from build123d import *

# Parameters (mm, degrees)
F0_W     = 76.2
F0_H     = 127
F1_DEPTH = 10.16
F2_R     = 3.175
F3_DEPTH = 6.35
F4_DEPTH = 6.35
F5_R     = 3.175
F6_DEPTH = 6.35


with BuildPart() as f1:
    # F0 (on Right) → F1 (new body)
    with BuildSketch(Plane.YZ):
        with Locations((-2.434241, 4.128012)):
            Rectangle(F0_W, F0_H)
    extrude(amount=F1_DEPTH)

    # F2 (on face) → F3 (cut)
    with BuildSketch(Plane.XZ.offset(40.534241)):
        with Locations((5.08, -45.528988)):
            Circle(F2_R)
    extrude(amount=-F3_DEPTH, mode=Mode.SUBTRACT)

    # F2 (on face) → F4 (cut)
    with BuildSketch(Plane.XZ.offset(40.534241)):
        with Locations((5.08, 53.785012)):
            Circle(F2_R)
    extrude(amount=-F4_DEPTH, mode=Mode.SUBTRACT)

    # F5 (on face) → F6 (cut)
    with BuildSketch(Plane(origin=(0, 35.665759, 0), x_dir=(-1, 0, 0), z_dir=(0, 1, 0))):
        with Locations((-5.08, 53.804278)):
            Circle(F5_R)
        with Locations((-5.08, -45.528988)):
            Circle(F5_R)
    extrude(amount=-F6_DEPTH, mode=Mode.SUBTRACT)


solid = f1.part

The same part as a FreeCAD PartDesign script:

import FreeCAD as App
import Part
import Sketcher
from FreeCAD import Vector
Q = App.Units.Quantity

doc = App.newDocument("Part")
body = doc.addObject("PartDesign::Body", "Body")

sketch1 = doc.addObject("Sketcher::SketchObject", "Sketch")
body.addObject(sketch1)
sketch1.AttachmentSupport = (doc.YZ_Plane, [""])
sketch1.MapMode = "FlatFace"
sketch1.addGeometry([
    Part.LineSegment(Vector(-40.534241, 67.628012, 0), Vector(-40.534241, -59.371988, 0)),
    Part.LineSegment(Vector(-40.534241, -59.371988, 0), Vector(35.665759, -59.371988, 0)),
    Part.LineSegment(Vector(35.665759, -59.371988, 0), Vector(35.665759, 67.628012, 0)),
    Part.LineSegment(Vector(35.665759, 67.628012, 0), Vector(-40.534241, 67.628012, 0)),
], False)
sketch1.addConstraint([
    Sketcher.Constraint("Coincident", 0, 2, 1, 1),
    Sketcher.Constraint("Coincident", 1, 2, 2, 1),
    Sketcher.Constraint("Coincident", 2, 2, 3, 1),
    Sketcher.Constraint("Coincident", 3, 2, 0, 1),
    Sketcher.Constraint("Vertical", 0),
    Sketcher.Constraint("Horizontal", 1),
    Sketcher.Constraint("Vertical", 2),
    Sketcher.Constraint("Horizontal", 3),
    Sketcher.Constraint("DistanceX", 1, 1, 1, 2, Q("3 in")),
    Sketcher.Constraint("DistanceY", 0, 2, 0, 1, Q("5 in")),
    Sketcher.Constraint("DistanceX", 0, 2, -1, 1, Q("40.534241 mm")),
    Sketcher.Constraint("DistanceY", 0, 2, -1, 1, Q("59.371988 mm")),
])
pad1 = doc.addObject("PartDesign::Pad", "Pad")
body.addObject(pad1)
pad1.Profile = sketch1
pad1.Length = Q("0.4 in")

sketch2 = doc.addObject("Sketcher::SketchObject", "Sketch001")
body.addObject(sketch2)
sketch2.AttachmentSupport = (doc.XZ_Plane, [""])
sketch2.MapMode = "FlatFace"
sketch2.AttachmentOffset = App.Placement(Vector(0, 0, 40.534241), App.Rotation())
sketch2.addGeometry(Part.Circle(Vector(5.08, -45.528988, 0), Vector(0, 0, 1), 3.175), False)
sketch2.addConstraint([
    Sketcher.Constraint("Diameter", 0, Q("0.25 in")),
    Sketcher.Constraint("DistanceX", -1, 1, 0, 3, Q("0.2 in")),
    Sketcher.Constraint("DistanceY", 0, 3, -1, 1, Q("45.528988 mm")),
])
pocket1 = doc.addObject("PartDesign::Pocket", "Pocket")
body.addObject(pocket1)
pocket1.Profile = sketch2
pocket1.Length = Q("0.25 in")

sketch3 = doc.addObject("Sketcher::SketchObject", "Sketch002")
body.addObject(sketch3)
sketch3.AttachmentSupport = (doc.XZ_Plane, [""])
sketch3.MapMode = "FlatFace"
sketch3.AttachmentOffset = App.Placement(Vector(0, 0, 40.534241), App.Rotation())
sketch3.addGeometry(Part.Circle(Vector(5.08, 53.785012, 0), Vector(0, 0, 1), 3.175), False)
sketch3.addConstraint([
    Sketcher.Constraint("Diameter", 0, Q("0.25 in")),
    Sketcher.Constraint("DistanceX", -1, 1, 0, 3, Q("0.2 in")),
    Sketcher.Constraint("DistanceY", -1, 1, 0, 3, Q("53.785012 mm")),
])
pocket2 = doc.addObject("PartDesign::Pocket", "Pocket001")
body.addObject(pocket2)
pocket2.Profile = sketch3
pocket2.Length = Q("0.25 in")

sketch4 = doc.addObject("Sketcher::SketchObject", "Sketch003")
body.addObject(sketch4)
sketch4.AttachmentSupport = (doc.XZ_Plane, [""])
sketch4.MapMode = "FlatFace"
sketch4.AttachmentOffset = App.Placement(Vector(0, 0, -35.665759), App.Rotation())
sketch4.addGeometry([
    Part.Circle(Vector(5.08, 53.804278, 0), Vector(0, 0, 1), 3.175),
    Part.Circle(Vector(5.08, -45.528988, 0), Vector(0, 0, 1), 3.175),
], False)
sketch4.addConstraint([
    Sketcher.Constraint("Equal", 0, 1),
    Sketcher.Constraint("Vertical", 0, 3, 1, 3),
    Sketcher.Constraint("Diameter", 0, Q("0.25 in")),
    Sketcher.Constraint("DistanceX", -1, 1, 0, 3, Q("0.2 in")),
    Sketcher.Constraint("DistanceY", -1, 1, 0, 3, Q("53.804278 mm")),
    Sketcher.Constraint("DistanceY", 1, 3, -1, 1, Q("45.528988 mm")),
])
pocket3 = doc.addObject("PartDesign::Pocket", "Pocket002")
body.addObject(pocket3)
pocket3.Profile = sketch4
pocket3.Length = Q("0.25 in")
pocket3.Reversed = True

doc.recompute()
